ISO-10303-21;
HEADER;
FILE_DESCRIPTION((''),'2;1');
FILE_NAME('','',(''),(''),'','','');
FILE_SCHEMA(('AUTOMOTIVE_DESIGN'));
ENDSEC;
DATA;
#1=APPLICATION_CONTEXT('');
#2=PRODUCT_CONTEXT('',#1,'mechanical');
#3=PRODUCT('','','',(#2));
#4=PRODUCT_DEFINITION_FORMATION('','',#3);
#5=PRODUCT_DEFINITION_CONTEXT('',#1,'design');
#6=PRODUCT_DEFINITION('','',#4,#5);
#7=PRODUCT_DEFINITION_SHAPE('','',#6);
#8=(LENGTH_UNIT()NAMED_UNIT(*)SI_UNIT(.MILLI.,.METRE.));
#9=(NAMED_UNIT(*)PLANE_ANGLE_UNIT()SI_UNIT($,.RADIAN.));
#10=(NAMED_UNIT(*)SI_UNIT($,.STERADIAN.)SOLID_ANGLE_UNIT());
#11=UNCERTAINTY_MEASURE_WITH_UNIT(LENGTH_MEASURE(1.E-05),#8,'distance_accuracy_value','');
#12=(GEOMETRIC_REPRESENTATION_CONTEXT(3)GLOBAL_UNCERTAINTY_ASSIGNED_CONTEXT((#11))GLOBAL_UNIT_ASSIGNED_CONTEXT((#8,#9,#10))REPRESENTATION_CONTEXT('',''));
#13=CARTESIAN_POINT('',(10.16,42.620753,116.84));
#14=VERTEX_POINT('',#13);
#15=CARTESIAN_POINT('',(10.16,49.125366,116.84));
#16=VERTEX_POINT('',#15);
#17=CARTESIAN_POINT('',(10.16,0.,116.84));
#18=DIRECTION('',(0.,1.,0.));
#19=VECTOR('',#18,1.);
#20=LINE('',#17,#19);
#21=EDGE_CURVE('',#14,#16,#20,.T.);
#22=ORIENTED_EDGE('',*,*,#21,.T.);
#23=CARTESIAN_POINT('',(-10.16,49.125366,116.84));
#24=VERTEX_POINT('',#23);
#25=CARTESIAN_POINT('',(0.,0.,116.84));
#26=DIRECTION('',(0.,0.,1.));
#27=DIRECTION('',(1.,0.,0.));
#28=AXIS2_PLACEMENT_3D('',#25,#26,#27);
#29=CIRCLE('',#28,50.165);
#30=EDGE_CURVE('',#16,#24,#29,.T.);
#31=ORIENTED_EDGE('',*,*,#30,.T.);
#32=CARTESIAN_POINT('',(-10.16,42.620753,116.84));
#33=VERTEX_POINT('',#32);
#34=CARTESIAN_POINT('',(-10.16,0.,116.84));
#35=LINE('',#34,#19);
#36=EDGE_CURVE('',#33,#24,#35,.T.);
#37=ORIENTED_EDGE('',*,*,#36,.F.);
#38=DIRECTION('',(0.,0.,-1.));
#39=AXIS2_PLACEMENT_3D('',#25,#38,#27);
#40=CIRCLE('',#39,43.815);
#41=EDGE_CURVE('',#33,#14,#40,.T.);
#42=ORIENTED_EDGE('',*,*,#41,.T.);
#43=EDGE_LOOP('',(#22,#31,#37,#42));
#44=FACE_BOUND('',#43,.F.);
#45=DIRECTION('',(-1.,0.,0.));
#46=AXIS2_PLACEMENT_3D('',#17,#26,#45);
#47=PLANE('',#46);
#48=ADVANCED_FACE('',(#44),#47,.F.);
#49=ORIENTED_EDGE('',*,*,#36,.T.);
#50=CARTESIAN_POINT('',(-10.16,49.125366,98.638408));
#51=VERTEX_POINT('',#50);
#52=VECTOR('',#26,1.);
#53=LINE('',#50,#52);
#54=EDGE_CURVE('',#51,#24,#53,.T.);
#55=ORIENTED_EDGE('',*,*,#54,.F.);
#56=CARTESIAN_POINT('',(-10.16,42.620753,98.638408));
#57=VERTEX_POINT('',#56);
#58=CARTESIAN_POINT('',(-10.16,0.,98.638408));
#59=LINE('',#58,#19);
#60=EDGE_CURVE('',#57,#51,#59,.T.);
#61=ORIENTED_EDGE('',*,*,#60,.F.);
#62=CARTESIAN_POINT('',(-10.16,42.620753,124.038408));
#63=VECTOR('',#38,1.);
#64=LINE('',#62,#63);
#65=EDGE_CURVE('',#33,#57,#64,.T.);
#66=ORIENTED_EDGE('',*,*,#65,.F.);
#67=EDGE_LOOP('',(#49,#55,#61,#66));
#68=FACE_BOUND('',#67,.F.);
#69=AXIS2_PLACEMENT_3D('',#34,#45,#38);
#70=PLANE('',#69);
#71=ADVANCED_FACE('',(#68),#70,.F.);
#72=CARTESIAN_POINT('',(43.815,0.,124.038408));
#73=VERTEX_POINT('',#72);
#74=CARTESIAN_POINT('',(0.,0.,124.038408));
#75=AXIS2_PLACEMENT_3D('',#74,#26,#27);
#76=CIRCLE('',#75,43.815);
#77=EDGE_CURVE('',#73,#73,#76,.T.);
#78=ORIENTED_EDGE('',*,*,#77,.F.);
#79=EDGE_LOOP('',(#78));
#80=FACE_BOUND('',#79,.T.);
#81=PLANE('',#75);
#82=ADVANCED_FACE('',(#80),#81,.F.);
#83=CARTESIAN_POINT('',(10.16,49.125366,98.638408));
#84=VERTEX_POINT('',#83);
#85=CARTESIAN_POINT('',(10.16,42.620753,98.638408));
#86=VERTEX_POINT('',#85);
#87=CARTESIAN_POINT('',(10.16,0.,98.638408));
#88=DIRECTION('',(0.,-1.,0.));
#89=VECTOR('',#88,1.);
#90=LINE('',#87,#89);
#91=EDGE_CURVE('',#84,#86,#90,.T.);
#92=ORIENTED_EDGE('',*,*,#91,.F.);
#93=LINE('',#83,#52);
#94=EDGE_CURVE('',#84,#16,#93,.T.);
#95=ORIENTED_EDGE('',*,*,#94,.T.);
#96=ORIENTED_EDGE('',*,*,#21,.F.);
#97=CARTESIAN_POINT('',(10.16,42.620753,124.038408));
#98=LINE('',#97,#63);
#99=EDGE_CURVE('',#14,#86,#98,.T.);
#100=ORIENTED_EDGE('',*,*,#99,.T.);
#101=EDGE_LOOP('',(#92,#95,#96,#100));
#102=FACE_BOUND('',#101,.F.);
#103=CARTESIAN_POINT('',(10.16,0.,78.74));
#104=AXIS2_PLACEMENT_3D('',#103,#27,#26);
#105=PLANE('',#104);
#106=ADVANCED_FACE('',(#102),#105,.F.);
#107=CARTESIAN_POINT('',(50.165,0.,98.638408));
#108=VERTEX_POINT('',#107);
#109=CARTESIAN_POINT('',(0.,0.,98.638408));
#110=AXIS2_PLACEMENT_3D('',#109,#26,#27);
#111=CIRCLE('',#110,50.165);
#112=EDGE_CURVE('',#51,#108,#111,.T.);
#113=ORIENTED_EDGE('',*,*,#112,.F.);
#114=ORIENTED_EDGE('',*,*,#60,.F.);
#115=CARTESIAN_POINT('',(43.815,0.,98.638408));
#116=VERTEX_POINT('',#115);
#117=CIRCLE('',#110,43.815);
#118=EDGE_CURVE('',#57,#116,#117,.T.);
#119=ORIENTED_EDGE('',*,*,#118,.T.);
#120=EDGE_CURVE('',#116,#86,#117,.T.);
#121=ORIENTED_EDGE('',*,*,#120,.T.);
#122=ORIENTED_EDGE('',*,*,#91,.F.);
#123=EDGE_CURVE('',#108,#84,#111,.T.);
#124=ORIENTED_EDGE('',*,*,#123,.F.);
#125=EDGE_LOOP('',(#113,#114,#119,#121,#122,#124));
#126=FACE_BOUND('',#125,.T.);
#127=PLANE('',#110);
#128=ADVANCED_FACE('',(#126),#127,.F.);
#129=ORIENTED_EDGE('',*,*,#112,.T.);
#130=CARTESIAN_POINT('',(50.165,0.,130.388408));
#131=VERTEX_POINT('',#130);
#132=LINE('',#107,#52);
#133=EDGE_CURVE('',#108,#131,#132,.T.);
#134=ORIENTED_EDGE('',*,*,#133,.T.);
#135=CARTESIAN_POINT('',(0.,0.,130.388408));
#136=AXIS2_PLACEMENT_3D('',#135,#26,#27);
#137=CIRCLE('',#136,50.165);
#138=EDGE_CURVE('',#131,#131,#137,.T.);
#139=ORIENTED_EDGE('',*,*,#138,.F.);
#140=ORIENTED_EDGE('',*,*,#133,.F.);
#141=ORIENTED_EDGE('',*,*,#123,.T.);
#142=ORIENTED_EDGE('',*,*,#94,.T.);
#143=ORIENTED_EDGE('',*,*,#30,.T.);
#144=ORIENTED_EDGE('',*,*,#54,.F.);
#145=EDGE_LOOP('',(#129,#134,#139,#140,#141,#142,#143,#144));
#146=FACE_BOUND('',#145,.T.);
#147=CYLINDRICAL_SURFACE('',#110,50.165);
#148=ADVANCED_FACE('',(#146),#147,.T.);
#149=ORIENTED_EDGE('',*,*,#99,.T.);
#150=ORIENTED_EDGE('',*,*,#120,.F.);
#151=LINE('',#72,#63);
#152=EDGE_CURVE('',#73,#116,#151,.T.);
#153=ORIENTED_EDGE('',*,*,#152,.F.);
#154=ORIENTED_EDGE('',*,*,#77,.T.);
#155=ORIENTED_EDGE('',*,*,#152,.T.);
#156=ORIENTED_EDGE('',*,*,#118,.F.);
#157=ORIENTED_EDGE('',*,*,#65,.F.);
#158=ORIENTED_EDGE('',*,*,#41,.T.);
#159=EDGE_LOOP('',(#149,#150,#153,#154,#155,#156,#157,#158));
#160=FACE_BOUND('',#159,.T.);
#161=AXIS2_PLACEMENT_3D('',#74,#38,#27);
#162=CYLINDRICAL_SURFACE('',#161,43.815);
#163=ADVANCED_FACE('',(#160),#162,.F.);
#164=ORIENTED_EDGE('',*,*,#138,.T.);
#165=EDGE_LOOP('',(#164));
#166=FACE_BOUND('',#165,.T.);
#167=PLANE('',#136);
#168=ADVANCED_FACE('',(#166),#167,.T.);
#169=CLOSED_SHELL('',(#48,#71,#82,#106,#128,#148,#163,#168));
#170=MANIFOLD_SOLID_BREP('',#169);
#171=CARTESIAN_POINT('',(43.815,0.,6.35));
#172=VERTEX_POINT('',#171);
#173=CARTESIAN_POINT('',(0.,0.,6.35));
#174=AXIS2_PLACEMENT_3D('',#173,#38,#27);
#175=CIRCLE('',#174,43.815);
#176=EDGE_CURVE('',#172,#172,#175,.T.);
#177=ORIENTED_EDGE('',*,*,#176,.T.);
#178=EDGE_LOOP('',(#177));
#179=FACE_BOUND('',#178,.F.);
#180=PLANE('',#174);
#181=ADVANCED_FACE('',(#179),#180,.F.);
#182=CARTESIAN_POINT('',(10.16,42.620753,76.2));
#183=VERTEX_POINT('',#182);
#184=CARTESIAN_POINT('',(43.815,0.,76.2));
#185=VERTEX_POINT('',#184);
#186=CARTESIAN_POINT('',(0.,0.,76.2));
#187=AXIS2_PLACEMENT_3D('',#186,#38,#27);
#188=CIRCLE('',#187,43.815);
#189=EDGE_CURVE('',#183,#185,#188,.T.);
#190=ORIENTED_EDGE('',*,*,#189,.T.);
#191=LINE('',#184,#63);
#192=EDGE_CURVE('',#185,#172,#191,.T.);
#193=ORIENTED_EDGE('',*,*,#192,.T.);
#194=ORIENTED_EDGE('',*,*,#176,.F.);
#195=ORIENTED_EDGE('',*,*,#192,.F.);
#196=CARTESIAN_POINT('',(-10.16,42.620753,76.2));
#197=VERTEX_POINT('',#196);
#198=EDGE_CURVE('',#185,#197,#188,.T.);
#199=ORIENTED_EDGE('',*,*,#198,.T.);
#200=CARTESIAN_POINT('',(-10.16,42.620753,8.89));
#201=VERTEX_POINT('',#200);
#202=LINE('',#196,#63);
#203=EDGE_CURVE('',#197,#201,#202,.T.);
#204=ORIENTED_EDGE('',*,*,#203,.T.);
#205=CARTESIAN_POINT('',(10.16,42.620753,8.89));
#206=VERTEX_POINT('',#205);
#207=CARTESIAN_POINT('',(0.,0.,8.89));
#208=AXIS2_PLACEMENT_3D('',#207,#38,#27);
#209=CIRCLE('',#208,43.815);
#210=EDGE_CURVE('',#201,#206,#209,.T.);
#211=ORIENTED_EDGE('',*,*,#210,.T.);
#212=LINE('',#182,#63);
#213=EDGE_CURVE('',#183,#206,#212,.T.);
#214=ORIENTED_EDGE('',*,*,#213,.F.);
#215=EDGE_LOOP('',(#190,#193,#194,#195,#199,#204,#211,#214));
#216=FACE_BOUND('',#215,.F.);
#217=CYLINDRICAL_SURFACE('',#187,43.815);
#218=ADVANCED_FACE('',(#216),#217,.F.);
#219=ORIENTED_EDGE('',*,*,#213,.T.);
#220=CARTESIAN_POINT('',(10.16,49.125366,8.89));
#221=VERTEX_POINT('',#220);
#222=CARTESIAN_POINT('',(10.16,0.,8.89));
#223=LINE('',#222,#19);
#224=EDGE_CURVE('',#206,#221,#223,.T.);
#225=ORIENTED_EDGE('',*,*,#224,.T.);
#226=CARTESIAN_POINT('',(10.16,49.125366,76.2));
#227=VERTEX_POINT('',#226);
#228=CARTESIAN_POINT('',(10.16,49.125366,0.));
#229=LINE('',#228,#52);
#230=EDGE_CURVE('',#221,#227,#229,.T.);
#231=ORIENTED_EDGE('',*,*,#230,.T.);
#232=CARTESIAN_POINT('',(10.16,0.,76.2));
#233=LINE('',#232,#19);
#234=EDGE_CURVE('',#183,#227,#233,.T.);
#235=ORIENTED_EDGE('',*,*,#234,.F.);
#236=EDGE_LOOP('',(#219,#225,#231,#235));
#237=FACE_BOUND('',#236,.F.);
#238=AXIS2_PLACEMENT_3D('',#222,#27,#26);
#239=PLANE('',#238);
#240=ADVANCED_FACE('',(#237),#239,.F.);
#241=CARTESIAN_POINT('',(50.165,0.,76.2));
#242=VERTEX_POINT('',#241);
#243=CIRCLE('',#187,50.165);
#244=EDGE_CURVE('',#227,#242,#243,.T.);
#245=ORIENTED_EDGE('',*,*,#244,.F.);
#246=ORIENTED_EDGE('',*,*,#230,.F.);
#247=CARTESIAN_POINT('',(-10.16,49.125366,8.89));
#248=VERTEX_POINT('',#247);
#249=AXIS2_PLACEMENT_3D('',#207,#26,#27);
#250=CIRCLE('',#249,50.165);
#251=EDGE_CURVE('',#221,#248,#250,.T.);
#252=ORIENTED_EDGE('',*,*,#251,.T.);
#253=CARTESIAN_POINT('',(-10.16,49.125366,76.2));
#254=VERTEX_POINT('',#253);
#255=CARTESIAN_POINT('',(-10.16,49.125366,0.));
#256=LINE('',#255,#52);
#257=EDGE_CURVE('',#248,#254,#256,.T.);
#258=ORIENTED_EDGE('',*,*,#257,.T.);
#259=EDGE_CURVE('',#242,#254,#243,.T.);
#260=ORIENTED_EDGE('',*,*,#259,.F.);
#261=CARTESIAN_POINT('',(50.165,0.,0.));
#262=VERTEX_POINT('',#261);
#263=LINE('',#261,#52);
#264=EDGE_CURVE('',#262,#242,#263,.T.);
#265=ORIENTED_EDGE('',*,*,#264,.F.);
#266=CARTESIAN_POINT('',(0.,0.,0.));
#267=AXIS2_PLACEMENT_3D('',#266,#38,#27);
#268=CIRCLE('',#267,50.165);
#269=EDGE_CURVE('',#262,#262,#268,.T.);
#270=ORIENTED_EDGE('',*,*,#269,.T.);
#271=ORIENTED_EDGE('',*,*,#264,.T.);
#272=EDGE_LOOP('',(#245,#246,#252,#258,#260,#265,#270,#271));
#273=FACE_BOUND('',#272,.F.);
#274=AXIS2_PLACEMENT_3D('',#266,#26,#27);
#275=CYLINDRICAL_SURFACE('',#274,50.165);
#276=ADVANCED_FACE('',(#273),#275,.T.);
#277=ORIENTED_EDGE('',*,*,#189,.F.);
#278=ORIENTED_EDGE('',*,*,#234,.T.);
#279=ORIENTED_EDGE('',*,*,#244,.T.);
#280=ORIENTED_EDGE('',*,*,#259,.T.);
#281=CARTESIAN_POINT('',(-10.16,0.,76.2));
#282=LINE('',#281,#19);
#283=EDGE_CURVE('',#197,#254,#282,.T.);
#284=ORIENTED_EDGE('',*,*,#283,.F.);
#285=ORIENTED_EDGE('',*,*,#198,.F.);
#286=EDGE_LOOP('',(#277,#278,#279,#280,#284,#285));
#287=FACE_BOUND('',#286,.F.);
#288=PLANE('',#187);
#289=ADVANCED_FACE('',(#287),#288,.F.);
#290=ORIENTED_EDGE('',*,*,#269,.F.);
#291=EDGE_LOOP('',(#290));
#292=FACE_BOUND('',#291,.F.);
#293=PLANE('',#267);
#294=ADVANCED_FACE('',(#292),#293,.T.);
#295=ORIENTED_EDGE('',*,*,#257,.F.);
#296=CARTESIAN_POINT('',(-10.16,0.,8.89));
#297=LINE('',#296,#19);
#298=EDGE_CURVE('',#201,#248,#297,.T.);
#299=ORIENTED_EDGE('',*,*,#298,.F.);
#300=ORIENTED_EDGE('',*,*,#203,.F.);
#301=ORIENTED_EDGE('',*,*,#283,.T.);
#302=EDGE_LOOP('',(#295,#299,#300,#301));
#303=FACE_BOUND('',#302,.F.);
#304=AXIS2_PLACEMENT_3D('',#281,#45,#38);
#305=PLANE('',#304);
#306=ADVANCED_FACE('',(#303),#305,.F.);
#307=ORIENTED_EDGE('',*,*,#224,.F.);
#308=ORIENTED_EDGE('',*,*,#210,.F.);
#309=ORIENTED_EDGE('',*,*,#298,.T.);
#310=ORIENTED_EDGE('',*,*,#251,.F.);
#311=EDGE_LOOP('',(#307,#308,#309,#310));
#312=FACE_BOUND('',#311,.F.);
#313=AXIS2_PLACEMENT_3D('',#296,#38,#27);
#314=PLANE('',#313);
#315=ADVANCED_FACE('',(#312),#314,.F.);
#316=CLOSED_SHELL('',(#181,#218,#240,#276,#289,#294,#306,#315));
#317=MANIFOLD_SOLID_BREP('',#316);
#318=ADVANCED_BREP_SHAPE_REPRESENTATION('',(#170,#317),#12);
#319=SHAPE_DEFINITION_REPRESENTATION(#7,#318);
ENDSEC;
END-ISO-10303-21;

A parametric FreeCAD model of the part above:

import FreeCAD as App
import Part
import Sketcher
from FreeCAD import Vector
Q = App.Units.Quantity


def add_polygon(sketch, points):
    """Adds a closed chain of lines whose ends are joined by coincident constraints."""
    first, n = sketch.GeometryCount, len(points)
    for a, b in zip(points, points[1:] + points[:1]):
        sketch.addGeometry(Part.LineSegment(App.Vector(*a, 0), App.Vector(*b, 0)), False)
    for i in range(n):
        sketch.addConstraint(Sketcher.Constraint("Coincident", first + i, 2, first + (i + 1) % n, 1))

doc = App.newDocument("Part")
body = doc.addObject("PartDesign::Body", "Body")

sketch1 = body.newObject("Sketcher::SketchObject", "Sketch")
sketch1.AttachmentSupport = (doc.getObject("XZ_Plane"), [""])
sketch1.MapMode = "FlatFace"
add_polygon(sketch1, [(0, 6), (0, 0), (50, 0), (50, 76), (44, 76), (44, 6)])
sketch1.addConstraint(Sketcher.Constraint("Vertical", 0))
sketch1.addConstraint(Sketcher.Constraint("Horizontal", 1))
sketch1.addConstraint(Sketcher.Constraint("Vertical", 2))
sketch1.addConstraint(Sketcher.Constraint("Horizontal", 3))
sketch1.addConstraint(Sketcher.Constraint("Vertical", 4))
sketch1.addConstraint(Sketcher.Constraint("Horizontal", 5))
sketch1.addConstraint(Sketcher.Constraint("Coincident", 0, 2, -1, 1))
sketch1.addConstraint(Sketcher.Constraint("Equal", 3, 0))
sketch1.addConstraint(Sketcher.Constraint("DistanceY", 2, 1, 2, 2, Q("3 in")))
sketch1.addConstraint(Sketcher.Constraint("DistanceX", 3, 2, 3, 1, Q("0.25 in")))
sketch1.addConstraint(Sketcher.Constraint("DistanceX", 1, 1, 1, 2, Q("1.975 in")))
revolution = body.newObject("PartDesign::Revolution", "Revolution")
revolution.Profile = sketch1
revolution.ReferenceAxis = (sketch1, ["V_Axis"])
revolution.Angle = 360

sketch2 = body.newObject("Sketcher::SketchObject", "Sketch001")
sketch2.AttachmentSupport = (doc.getObject("XZ_Plane"), [""])
sketch2.MapMode = "FlatFace"
add_polygon(sketch2, [(-10, 9), (10, 9), (10, 76), (-10, 76)])
sketch2.addConstraint(Sketcher.Constraint("Horizontal", 0))
sketch2.addConstraint(Sketcher.Constraint("Vertical", 1))
sketch2.addConstraint(Sketcher.Constraint("Horizontal", 2))
sketch2.addConstraint(Sketcher.Constraint("Vertical", 3))
sketch2.addConstraint(Sketcher.Constraint("DistanceX", 0, 1, 0, 2, Q("0.8 in")))
sketch2.addConstraint(Sketcher.Constraint("DistanceY", -1, 1, 1, 2, Q("3 in")))
sketch2.addConstraint(Sketcher.Constraint("DistanceY", 1, 1, 1, 2, Q("2.65 in")))
sketch2.addConstraint(Sketcher.Constraint("DistanceX", -1, 1, 0, 2, Q("0.4 in")))
pocket1 = body.newObject("PartDesign::Pocket", "Pocket")
pocket1.Profile = sketch2
pocket1.Length = Q("3.9 in")
body2 = doc.addObject("PartDesign::Body", "Body001")

sketch3 = body2.newObject("Sketcher::SketchObject", "Sketch002")
sketch3.AttachmentSupport = (doc.getObject("XZ_Plane001"), [""])
sketch3.MapMode = "FlatFace"
add_polygon(sketch3, [(50, 130), (0, 130), (0, 124), (44, 124), (44, 99), (50, 99)])
sketch3.addConstraint(Sketcher.Constraint("Horizontal", 0))
sketch3.addConstraint(Sketcher.Constraint("Vertical", 1))
sketch3.addConstraint(Sketcher.Constraint("Horizontal", 2))
sketch3.addConstraint(Sketcher.Constraint("Vertical", 3))
sketch3.addConstraint(Sketcher.Constraint("Horizontal", 4))
sketch3.addConstraint(Sketcher.Constraint("Vertical", 5))
sketch3.addConstraint(Sketcher.Constraint("PointOnObject", 0, 2, -2))
sketch3.addConstraint(Sketcher.Constraint("Equal", 4, 1))
sketch3.addConstraint(Sketcher.Constraint("DistanceY", 3, 2, 3, 1, Q("1 in")))
sketch3.addConstraint(Sketcher.Constraint("DistanceX", 4, 1, 4, 2, Q("0.25 in")))
sketch3.addConstraint(Sketcher.Constraint("DistanceX", 0, 2, 0, 1, Q("1.975 in")))
sketch3.addConstraint(Sketcher.Constraint("DistanceY", -1, 1, 0, 2, 130.388408))
revolution2 = body2.newObject("PartDesign::Revolution", "Revolution001")
revolution2.Profile = sketch3
revolution2.ReferenceAxis = (sketch3, ["V_Axis"])
revolution2.Angle = 360

sketch4 = body2.newObject("Sketcher::SketchObject", "Sketch003")
sketch4.AttachmentSupport = (doc.getObject("XZ_Plane001"), [""])
sketch4.MapMode = "FlatFace"
add_polygon(sketch4, [(-10, 79), (10, 79), (10, 117), (-10, 117)])
sketch4.addConstraint(Sketcher.Constraint("Horizontal", 0))
sketch4.addConstraint(Sketcher.Constraint("Vertical", 1))
sketch4.addConstraint(Sketcher.Constraint("Horizontal", 2))
sketch4.addConstraint(Sketcher.Constraint("Vertical", 3))
sketch4.addConstraint(Sketcher.Constraint("DistanceX", 0, 1, 0, 2, Q("0.8 in")))
sketch4.addConstraint(Sketcher.Constraint("DistanceY", 1, 1, 1, 2, Q("1.5 in")))
sketch4.addConstraint(Sketcher.Constraint("DistanceX", -1, 1, 0, 2, Q("0.4 in")))
sketch4.addConstraint(Sketcher.Constraint("DistanceY", -1, 1, 0, 2, Q("3.1 in")))
pocket2 = body2.newObject("PartDesign::Pocket", "Pocket001")
pocket2.Profile = sketch4
pocket2.Length = Q("3.74 in")

doc.recompute()
